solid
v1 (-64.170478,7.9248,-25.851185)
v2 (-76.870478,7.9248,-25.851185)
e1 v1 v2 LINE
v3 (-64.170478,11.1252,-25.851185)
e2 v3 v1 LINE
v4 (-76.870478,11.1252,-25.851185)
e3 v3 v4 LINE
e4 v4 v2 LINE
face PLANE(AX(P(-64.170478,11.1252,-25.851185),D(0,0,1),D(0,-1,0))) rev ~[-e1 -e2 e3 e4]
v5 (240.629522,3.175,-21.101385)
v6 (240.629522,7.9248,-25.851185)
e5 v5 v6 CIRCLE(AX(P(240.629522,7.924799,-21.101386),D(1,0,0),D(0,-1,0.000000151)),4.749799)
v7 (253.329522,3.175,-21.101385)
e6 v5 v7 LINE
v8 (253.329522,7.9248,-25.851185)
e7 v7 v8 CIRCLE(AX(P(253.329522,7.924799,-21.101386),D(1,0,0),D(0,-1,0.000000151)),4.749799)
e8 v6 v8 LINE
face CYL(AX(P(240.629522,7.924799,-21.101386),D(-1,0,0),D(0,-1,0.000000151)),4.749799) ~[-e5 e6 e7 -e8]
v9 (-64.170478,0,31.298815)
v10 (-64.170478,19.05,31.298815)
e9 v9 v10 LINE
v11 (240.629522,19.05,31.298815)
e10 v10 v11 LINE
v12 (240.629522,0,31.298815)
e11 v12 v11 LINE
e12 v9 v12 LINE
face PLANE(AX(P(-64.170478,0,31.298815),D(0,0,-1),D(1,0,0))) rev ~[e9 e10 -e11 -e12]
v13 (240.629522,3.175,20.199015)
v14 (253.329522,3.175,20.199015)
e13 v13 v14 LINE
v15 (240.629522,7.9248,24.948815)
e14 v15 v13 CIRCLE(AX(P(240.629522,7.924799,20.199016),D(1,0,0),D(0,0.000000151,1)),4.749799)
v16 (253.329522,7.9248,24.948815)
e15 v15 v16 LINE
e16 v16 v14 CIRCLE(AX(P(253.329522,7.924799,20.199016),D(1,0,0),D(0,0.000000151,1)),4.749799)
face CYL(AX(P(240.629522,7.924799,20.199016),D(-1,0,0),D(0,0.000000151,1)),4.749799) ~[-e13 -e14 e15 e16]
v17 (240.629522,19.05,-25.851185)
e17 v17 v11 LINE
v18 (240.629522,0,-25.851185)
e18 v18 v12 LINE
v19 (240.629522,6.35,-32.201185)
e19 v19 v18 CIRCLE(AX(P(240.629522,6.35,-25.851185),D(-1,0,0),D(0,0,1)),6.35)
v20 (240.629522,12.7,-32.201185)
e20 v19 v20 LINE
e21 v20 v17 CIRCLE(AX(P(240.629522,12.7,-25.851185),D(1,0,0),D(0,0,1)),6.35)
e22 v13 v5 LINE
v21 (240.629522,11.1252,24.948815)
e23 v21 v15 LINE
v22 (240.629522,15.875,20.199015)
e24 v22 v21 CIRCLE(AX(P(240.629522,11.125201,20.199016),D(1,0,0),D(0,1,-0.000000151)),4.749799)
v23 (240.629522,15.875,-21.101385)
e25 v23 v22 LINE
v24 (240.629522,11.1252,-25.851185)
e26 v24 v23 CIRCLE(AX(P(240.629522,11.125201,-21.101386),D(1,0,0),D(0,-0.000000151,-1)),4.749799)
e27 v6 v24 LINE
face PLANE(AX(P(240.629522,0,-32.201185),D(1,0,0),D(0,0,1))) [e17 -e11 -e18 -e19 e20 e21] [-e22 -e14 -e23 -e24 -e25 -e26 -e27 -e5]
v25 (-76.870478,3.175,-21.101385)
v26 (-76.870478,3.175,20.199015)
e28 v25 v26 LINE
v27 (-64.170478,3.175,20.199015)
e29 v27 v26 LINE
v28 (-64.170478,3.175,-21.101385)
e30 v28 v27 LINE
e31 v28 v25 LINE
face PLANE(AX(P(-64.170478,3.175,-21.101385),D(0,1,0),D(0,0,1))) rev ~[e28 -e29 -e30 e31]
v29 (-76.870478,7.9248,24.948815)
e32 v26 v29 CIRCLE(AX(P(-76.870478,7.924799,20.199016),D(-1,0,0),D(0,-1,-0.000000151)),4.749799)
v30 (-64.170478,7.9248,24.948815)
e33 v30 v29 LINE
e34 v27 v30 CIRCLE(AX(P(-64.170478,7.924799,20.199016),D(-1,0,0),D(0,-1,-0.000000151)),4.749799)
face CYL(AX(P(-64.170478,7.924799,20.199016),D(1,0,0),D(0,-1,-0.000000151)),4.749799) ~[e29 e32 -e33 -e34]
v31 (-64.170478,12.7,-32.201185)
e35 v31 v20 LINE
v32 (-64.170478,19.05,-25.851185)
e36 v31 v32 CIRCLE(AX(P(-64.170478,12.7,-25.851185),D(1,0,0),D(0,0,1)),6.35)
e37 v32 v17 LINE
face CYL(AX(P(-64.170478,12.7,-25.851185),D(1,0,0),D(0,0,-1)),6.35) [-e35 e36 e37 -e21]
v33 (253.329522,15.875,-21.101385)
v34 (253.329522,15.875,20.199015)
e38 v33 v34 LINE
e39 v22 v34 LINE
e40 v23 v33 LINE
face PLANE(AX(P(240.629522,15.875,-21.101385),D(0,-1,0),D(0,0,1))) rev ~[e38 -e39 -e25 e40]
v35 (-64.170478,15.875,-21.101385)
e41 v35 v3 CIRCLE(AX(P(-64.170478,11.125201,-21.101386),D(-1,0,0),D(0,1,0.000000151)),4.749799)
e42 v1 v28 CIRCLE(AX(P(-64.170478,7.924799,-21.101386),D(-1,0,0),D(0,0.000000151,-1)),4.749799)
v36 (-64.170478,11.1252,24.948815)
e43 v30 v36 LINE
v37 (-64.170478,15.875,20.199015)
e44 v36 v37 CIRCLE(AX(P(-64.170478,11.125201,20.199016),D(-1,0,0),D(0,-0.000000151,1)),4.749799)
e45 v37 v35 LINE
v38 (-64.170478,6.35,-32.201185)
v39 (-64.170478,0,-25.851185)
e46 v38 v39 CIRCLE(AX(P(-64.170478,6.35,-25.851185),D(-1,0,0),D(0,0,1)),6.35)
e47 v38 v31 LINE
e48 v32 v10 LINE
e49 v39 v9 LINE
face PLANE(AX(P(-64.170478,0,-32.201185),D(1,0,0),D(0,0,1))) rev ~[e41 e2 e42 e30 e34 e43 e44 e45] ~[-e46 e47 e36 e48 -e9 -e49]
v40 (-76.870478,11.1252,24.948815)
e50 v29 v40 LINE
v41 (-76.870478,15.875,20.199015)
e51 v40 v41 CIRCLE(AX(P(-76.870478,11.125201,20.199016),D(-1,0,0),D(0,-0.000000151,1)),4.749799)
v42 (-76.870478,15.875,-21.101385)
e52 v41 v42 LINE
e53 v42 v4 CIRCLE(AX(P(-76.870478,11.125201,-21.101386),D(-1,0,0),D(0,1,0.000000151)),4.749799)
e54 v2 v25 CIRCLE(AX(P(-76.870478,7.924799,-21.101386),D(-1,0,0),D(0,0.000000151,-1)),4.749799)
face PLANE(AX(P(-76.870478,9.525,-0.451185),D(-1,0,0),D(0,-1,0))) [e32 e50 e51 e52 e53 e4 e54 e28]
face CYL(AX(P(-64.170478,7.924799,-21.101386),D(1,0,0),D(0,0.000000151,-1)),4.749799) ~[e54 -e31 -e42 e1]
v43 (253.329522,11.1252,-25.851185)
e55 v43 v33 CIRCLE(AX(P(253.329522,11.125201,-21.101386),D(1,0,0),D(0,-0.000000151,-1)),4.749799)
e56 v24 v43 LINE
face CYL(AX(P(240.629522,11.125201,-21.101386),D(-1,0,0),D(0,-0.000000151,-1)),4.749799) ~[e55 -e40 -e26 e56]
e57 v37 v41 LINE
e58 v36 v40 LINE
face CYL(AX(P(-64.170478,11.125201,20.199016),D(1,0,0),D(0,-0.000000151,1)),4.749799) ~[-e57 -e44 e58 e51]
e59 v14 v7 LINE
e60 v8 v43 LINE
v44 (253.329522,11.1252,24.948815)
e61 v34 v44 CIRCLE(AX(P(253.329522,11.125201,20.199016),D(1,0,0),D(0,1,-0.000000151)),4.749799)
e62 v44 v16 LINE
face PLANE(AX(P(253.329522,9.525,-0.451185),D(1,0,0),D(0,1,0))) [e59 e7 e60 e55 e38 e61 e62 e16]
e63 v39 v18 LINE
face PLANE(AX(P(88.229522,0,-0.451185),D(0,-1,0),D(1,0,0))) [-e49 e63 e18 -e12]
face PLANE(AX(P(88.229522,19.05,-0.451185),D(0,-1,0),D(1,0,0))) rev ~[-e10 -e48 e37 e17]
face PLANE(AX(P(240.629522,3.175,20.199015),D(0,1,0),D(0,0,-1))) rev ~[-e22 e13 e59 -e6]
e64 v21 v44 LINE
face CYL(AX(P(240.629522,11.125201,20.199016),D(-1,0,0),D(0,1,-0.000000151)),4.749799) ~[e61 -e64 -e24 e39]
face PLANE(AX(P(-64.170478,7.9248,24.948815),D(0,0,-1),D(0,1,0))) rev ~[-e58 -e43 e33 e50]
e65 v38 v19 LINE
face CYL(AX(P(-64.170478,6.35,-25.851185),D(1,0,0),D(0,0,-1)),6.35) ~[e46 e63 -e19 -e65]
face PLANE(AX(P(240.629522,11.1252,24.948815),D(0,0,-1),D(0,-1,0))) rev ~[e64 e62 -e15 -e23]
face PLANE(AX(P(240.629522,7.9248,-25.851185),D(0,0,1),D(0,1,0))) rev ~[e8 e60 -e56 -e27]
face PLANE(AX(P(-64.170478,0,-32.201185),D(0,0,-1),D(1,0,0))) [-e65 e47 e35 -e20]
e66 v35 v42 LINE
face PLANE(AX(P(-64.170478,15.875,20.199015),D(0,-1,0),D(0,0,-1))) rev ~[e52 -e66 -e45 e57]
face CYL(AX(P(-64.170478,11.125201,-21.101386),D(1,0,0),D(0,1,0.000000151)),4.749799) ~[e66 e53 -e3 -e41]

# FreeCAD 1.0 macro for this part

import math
import FreeCAD as App
import Part
import Sketcher
Q = App.Units.Quantity


def edges_at(feature, points):
    """Names of the edges that pass closest to the given points."""
    edges = feature.Shape.Edges
    near = lambda p: min(range(len(edges)), key=lambda i: edges[i].distToShape(Part.Vertex(*p))[0])
    return sorted({f"Edge{near(p) + 1}" for p in points})

doc = App.newDocument("Part")
body = doc.addObject("PartDesign::Body", "Body")

# Sketch on XZ plane
sketch1 = doc.addObject("Sketcher::SketchObject", "Sketch")
body.addObject(sketch1)
sketch1.AttachmentSupport = (doc.XZ_Plane, [""])
sketch1.MapMode = "FlatFace"
sketch1.addGeometry([
    Part.LineSegment(App.Vector(-64, 31, 0), App.Vector(-64, -32, 0)),
    Part.LineSegment(App.Vector(-64, -32, 0), App.Vector(241, -32, 0)),
    Part.LineSegment(App.Vector(241, -32, 0), App.Vector(241, 31, 0)),
    Part.LineSegment(App.Vector(241, 31, 0), App.Vector(-64, 31, 0)),
], False)
sketch1.addConstraint([
    Sketcher.Constraint("Coincident", 0, 2, 1, 1),
    Sketcher.Constraint("Coincident", 1, 2, 2, 1),
    Sketcher.Constraint("Coincident", 2, 2, 3, 1),
    Sketcher.Constraint("Coincident", 3, 2, 0, 1),
    Sketcher.Constraint("Vertical", 0),
    Sketcher.Constraint("Horizontal", 1),
    Sketcher.Constraint("Vertical", 2),
    Sketcher.Constraint("Horizontal", 3),
    Sketcher.Constraint("DistanceX", 1, 1, 1, 2, Q("12 in")),
    Sketcher.Constraint("DistanceY", 0, 2, 0, 1, Q("2.5 in")),
    Sketcher.Constraint("DistanceX", 0, 2, -1, 1, 64.170478),
    Sketcher.Constraint("DistanceY", 0, 2, -1, 1, 32.201185),
])
pad1 = doc.addObject("PartDesign::Pad", "Pad")
body.addObject(pad1)
pad1.Profile = sketch1
pad1.Length = Q("0.75 in")
pad1.Reversed = True

# Sketch on YZ plane
sketch2 = doc.addObject("Sketcher::SketchObject", "Sketch001")
body.addObject(sketch2)
sketch2.AttachmentSupport = (doc.YZ_Plane, [""])
sketch2.MapMode = "FlatFace"
sketch2.AttachmentOffset = App.Placement(App.Vector(0, 0, 240.629522), App.Rotation())
sketch2.addGeometry([
    Part.LineSegment(App.Vector(11.1, 24.9, 0), App.Vector(7.9, 24.9, 0)),  # 0
    Part.ArcOfCircle(Part.Circle(App.Vector(7.9, 20.2, 0), App.Vector(0, 0, 1), 4.7), math.radians(90), math.radians(180)),  # 1
    Part.LineSegment(App.Vector(3.2, 20.2, 0), App.Vector(3.2, -21.1, 0)),  # 2
    Part.ArcOfCircle(Part.Circle(App.Vector(7.9, -21.1, 0), App.Vector(0, 0, 1), 4.7), math.radians(180), math.radians(270)),  # 3
    Part.LineSegment(App.Vector(7.9, -25.9, 0), App.Vector(11.1, -25.9, 0)),  # 4
    Part.ArcOfCircle(Part.Circle(App.Vector(11.1, -21.1, 0), App.Vector(0, 0, 1), 4.7), math.radians(-90), math.radians(0)),  # 5
    Part.LineSegment(App.Vector(15.9, -21.1, 0), App.Vector(15.9, 20.2, 0)),  # 6
    Part.ArcOfCircle(Part.Circle(App.Vector(11.1, 20.2, 0), App.Vector(0, 0, 1), 4.7), math.radians(0), math.radians(90)),  # 7
], False)
sketch2.addConstraint([
    Sketcher.Constraint("Tangent", 0, 2, 1, 1),
    Sketcher.Constraint("Tangent", 1, 2, 2, 1),
    Sketcher.Constraint("Tangent", 2, 2, 3, 1),
    Sketcher.Constraint("Tangent", 3, 2, 4, 1),
    Sketcher.Constraint("Tangent", 4, 2, 5, 1),
    Sketcher.Constraint("Tangent", 5, 2, 6, 1),
    Sketcher.Constraint("Tangent", 6, 2, 7, 1),
    Sketcher.Constraint("Tangent", 7, 2, 0, 1),
    Sketcher.Constraint("Horizontal", 0),
    Sketcher.Constraint("Vertical", 2),
    Sketcher.Constraint("Horizontal", 4),
    Sketcher.Constraint("Vertical", 6),
    Sketcher.Constraint("Equal", 1, 3),
    Sketcher.Constraint("Equal", 3, 5),
    Sketcher.Constraint("Equal", 5, 7),
    Sketcher.Constraint("Radius", 1, Q("0.187 in")),
    Sketcher.Constraint("DistanceX", 2, 2, 5, 2, Q("0.5 in")),
    Sketcher.Constraint("DistanceY", 2, 2, 2, 1, Q("1.626 in")),
    Sketcher.Constraint("DistanceX", -1, 1, 1, 3, Q("0.312 in")),
    Sketcher.Constraint("DistanceY", -1, 1, 1, 3, 20.199016),
])
pad2 = doc.addObject("PartDesign::Pad", "Pad001")
body.addObject(pad2)
pad2.Profile = sketch2
pad2.Length = Q("0.5 in")

# Sketch on YZ plane
sketch3 = doc.addObject("Sketcher::SketchObject", "Sketch002")
body.addObject(sketch3)
sketch3.AttachmentSupport = (doc.YZ_Plane, [""])
sketch3.MapMode = "FlatFace"
sketch3.AttachmentOffset = App.Placement(App.Vector(0, 0, -64.170478), App.Rotation())
sketch3.addGeometry([
    Part.LineSegment(App.Vector(7.9, 24.9, 0), App.Vector(11.1, 24.9, 0)),  # 0
    Part.ArcOfCircle(Part.Circle(App.Vector(11.1, 20.2, 0), App.Vector(0, 0, 1), 4.7), math.radians(0), math.radians(90)),  # 1
    Part.LineSegment(App.Vector(15.9, 20.2, 0), App.Vector(15.9, -21.1, 0)),  # 2
    Part.ArcOfCircle(Part.Circle(App.Vector(11.1, -21.1, 0), App.Vector(0, 0, 1), 4.7), math.radians(-90), math.radians(0)),  # 3
    Part.LineSegment(App.Vector(11.1, -25.9, 0), App.Vector(7.9, -25.9, 0)),  # 4
    Part.ArcOfCircle(Part.Circle(App.Vector(7.9, -21.1, 0), App.Vector(0, 0, 1), 4.7), math.radians(180), math.radians(270)),  # 5
    Part.LineSegment(App.Vector(3.2, -21.1, 0), App.Vector(3.2, 20.2, 0)),  # 6
    Part.ArcOfCircle(Part.Circle(App.Vector(7.9, 20.2, 0), App.Vector(0, 0, 1), 4.7), math.radians(90), math.radians(180)),  # 7
], False)
sketch3.addConstraint([
    Sketcher.Constraint("Tangent", 0, 2, 1, 2),
    Sketcher.Constraint("Tangent", 1, 1, 2, 1),
    Sketcher.Constraint("Tangent", 2, 2, 3, 2),
    Sketcher.Constraint("Tangent", 3, 1, 4, 1),
    Sketcher.Constraint("Tangent", 4, 2, 5, 2),
    Sketcher.Constraint("Tangent", 5, 1, 6, 1),
    Sketcher.Constraint("Tangent", 6, 2, 7, 2),
    Sketcher.Constraint("Tangent", 7, 1, 0, 1),
    Sketcher.Constraint("Horizontal", 0),
    Sketcher.Constraint("Vertical", 2),
    Sketcher.Constraint("Horizontal", 4),
    Sketcher.Constraint("Vertical", 6),
    Sketcher.Constraint("Equal", 1, 3),
    Sketcher.Constraint("Equal", 3, 5),
    Sketcher.Constraint("Equal", 5, 7),
    Sketcher.Constraint("Radius", 1, Q("0.187 in")),
    Sketcher.Constraint("DistanceX", 5, 1, 2, 2, Q("0.5 in")),
    Sketcher.Constraint("DistanceY", 2, 2, 2, 1, Q("1.626 in")),
    Sketcher.Constraint("DistanceX", -1, 1, 1, 3, Q("0.438 in")),
    Sketcher.Constraint("DistanceY", -1, 1, 1, 3, 20.199016),
])
pad3 = doc.addObject("PartDesign::Pad", "Pad002")
body.addObject(pad3)
pad3.Profile = sketch3
pad3.Length = Q("0.5 in")
pad3.Reversed = True
doc.recompute()

fillet = doc.addObject("PartDesign::Fillet", "Fillet")
body.addObject(fillet)
fillet.Base = (pad3, edges_at(pad3, [(88.23, 0, -32.201), (88.23, 19.05, -32.201)]))
fillet.Radius = Q("0.25 in")

doc.recompute()
